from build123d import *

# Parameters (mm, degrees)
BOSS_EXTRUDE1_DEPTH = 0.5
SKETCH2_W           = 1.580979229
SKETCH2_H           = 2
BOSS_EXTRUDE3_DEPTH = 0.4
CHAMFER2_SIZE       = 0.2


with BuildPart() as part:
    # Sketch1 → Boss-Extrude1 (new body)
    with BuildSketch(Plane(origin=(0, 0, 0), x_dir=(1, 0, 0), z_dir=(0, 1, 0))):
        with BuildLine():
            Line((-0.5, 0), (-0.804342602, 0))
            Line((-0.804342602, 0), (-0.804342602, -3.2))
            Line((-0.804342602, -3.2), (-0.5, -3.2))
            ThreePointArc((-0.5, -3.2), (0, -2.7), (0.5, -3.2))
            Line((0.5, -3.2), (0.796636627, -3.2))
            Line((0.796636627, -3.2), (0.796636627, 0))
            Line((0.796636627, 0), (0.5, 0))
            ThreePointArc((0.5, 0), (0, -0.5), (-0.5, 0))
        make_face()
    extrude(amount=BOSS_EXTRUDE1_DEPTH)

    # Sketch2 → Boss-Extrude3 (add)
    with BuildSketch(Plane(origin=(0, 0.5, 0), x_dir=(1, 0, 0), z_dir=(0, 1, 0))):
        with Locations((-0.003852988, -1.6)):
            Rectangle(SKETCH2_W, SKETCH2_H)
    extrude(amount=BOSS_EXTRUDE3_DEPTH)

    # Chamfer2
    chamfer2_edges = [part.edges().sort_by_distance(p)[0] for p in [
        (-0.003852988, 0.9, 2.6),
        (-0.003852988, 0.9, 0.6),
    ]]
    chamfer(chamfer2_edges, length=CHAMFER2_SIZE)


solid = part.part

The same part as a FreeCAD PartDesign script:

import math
import FreeCAD as App
import Part
import Sketcher
from FreeCAD import Vector


def edges_at(feature, points):
    """Names of the edges that pass closest to the given points."""
    edges = feature.Shape.Edges
    near = lambda p: min(range(len(edges)), key=lambda i: edges[i].distToShape(Part.Vertex(*p))[0])
    return sorted({f"Edge{near(p) + 1}" for p in points})


def add_polygon(sketch, points):
    """Adds a closed chain of lines whose ends are joined by coincident constraints."""
    first, n = sketch.GeometryCount, len(points)
    for a, b in zip(points, points[1:] + points[:1]):
        sketch.addGeometry(Part.LineSegment(App.Vector(*a, 0), App.Vector(*b, 0)), False)
    for i in range(n):
        sketch.addConstraint(Sketcher.Constraint("Coincident", first + i, 2, first + (i + 1) % n, 1))

doc = App.newDocument("Part")
params = doc.addObject("Spreadsheet::Sheet", "Params")
for row, (alias, value) in enumerate([
    ("sketch1_radius", "0.5 mm"),
    ("sketch1_height", "3.2 mm"),
    ("pad1_length", "0.5 mm"),
    ("sketch2_height", "2 mm"),
    ("pad2_length", "0.4 mm"),
    ("chamfer_size", "0.2 mm"),
], start=1):
    params.set(f"A{row}", alias)
    params.set(f"B{row}", "=" + value)
    params.setAlias(f"B{row}", alias)

body = doc.addObject("PartDesign::Body", "Body")

# Sketch on XZ plane
sketch1 = body.newObject("Sketcher::SketchObject", "Sketch")
sketch1.AttachmentSupport = (doc.getObject("XZ_Plane"), [""])
sketch1.MapMode = "FlatFace"
sketch1.addGeometry([
    Part.LineSegment(Vector(-0.5, 0, 0), Vector(-0.8, 0, 0)),  # 0
    Part.LineSegment(Vector(-0.8, 0, 0), Vector(-0.8, 3.2, 0)),  # 1
    Part.LineSegment(Vector(-0.8, 3.2, 0), Vector(-0.5, 3.2, 0)),  # 2
    Part.ArcOfCircle(Part.Circle(Vector(0, 3.2, 0), Vector(0, 0, 1), 0.5), math.radians(180), math.radians(360)),  # 3
    Part.LineSegment(Vector(0.5, 3.2, 0), Vector(0.8, 3.2, 0)),  # 4
    Part.LineSegment(Vector(0.8, 3.2, 0), Vector(0.8, 0, 0)),  # 5
    Part.LineSegment(Vector(0.8, 0, 0), Vector(0.5, 0, 0)),  # 6
    Part.ArcOfCircle(Part.Circle(Vector(0, 0, 0), Vector(0, 0, 1), 0.5), math.radians(0), math.radians(180)),  # 7
], False)
sketch1.addConstraint([
    Sketcher.Constraint("Coincident", 0, 2, 1, 1),
    Sketcher.Constraint("Coincident", 1, 2, 2, 1),
    Sketcher.Constraint("Coincident", 2, 2, 3, 1),
    Sketcher.Constraint("Coincident", 3, 2, 4, 1),
    Sketcher.Constraint("Coincident", 4, 2, 5, 1),
    Sketcher.Constraint("Coincident", 5, 2, 6, 1),
    Sketcher.Constraint("Coincident", 6, 2, 7, 1),
    Sketcher.Constraint("Coincident", 7, 2, 0, 1),
    Sketcher.Constraint("Horizontal", 0),
    Sketcher.Constraint("Vertical", 1),
    Sketcher.Constraint("Horizontal", 2),
    Sketcher.Constraint("Horizontal", 4),
    Sketcher.Constraint("Vertical", 5),
    Sketcher.Constraint("Horizontal", 6),
    Sketcher.Constraint("Coincident", 7, 3, -1, 1),
    Sketcher.Constraint("Equal", 3, 7),
    Sketcher.Constraint("Symmetric", 2, 2, 3, 2, -2),
    Sketcher.Constraint("PointOnObject", 0, 2, -1),
    Sketcher.Constraint("PointOnObject", 5, 2, -1),
    Sketcher.Constraint("Horizontal", 3, 3, 1, 2),
    Sketcher.Constraint("Radius", 3, 0.5),
    Sketcher.Constraint("DistanceY", 1, 1, 1, 2, 3.2),
    Sketcher.Constraint("DistanceX", 0, 2, 0, 1, 0.304343),
    Sketcher.Constraint("DistanceX", 4, 1, 4, 2, 0.296637),
])
sketch1.setExpression("Constraints[20]", "Params.sketch1_radius")
sketch1.setExpression("Constraints[21]", "Params.sketch1_height")
pad1 = body.newObject("PartDesign::Pad", "Pad")
pad1.Profile = sketch1
pad1.setExpression("Length", "Params.pad1_length")
pad1.Reversed = True

# Sketch on XZ plane
sketch2 = body.newObject("Sketcher::SketchObject", "Sketch001")
sketch2.AttachmentSupport = (doc.getObject("XZ_Plane"), [""])
sketch2.MapMode = "FlatFace"
sketch2.AttachmentOffset = App.Placement(Vector(0, 0, -0.5), App.Rotation())
add_polygon(sketch2, [(-0.8, 0.6), (-0.8, 2.6), (0.8, 2.6), (0.8, 0.6)])  # lines 0-3
sketch2.addConstraint([
    Sketcher.Constraint("Vertical", 0),
    Sketcher.Constraint("Horizontal", 1),
    Sketcher.Constraint("Vertical", 2),
    Sketcher.Constraint("Horizontal", 3),
    Sketcher.Constraint("DistanceY", 0, 1, 0, 2, 2.0),
    Sketcher.Constraint("DistanceY", -1, 1, 0, 2, 2.6),
    Sketcher.Constraint("DistanceX", 1, 1, 1, 2, 1.580979),
    Sketcher.Constraint("DistanceX", 0, 2, -1, 1, 0.794343),
])
sketch2.setExpression("Constraints[8]", "Params.sketch2_height")
pad2 = body.newObject("PartDesign::Pad", "Pad001")
pad2.Profile = sketch2
pad2.setExpression("Length", "Params.pad2_length")
pad2.Reversed = True
doc.recompute()

chamfer = body.newObject("PartDesign::Chamfer", "Chamfer")
chamfer.Base = (pad2, edges_at(pad2, [(-0.004, 0.9, 2.6), (-0.004, 0.9, 0.6)]))
chamfer.setExpression("Size", "Params.chamfer_size")

doc.recompute()
